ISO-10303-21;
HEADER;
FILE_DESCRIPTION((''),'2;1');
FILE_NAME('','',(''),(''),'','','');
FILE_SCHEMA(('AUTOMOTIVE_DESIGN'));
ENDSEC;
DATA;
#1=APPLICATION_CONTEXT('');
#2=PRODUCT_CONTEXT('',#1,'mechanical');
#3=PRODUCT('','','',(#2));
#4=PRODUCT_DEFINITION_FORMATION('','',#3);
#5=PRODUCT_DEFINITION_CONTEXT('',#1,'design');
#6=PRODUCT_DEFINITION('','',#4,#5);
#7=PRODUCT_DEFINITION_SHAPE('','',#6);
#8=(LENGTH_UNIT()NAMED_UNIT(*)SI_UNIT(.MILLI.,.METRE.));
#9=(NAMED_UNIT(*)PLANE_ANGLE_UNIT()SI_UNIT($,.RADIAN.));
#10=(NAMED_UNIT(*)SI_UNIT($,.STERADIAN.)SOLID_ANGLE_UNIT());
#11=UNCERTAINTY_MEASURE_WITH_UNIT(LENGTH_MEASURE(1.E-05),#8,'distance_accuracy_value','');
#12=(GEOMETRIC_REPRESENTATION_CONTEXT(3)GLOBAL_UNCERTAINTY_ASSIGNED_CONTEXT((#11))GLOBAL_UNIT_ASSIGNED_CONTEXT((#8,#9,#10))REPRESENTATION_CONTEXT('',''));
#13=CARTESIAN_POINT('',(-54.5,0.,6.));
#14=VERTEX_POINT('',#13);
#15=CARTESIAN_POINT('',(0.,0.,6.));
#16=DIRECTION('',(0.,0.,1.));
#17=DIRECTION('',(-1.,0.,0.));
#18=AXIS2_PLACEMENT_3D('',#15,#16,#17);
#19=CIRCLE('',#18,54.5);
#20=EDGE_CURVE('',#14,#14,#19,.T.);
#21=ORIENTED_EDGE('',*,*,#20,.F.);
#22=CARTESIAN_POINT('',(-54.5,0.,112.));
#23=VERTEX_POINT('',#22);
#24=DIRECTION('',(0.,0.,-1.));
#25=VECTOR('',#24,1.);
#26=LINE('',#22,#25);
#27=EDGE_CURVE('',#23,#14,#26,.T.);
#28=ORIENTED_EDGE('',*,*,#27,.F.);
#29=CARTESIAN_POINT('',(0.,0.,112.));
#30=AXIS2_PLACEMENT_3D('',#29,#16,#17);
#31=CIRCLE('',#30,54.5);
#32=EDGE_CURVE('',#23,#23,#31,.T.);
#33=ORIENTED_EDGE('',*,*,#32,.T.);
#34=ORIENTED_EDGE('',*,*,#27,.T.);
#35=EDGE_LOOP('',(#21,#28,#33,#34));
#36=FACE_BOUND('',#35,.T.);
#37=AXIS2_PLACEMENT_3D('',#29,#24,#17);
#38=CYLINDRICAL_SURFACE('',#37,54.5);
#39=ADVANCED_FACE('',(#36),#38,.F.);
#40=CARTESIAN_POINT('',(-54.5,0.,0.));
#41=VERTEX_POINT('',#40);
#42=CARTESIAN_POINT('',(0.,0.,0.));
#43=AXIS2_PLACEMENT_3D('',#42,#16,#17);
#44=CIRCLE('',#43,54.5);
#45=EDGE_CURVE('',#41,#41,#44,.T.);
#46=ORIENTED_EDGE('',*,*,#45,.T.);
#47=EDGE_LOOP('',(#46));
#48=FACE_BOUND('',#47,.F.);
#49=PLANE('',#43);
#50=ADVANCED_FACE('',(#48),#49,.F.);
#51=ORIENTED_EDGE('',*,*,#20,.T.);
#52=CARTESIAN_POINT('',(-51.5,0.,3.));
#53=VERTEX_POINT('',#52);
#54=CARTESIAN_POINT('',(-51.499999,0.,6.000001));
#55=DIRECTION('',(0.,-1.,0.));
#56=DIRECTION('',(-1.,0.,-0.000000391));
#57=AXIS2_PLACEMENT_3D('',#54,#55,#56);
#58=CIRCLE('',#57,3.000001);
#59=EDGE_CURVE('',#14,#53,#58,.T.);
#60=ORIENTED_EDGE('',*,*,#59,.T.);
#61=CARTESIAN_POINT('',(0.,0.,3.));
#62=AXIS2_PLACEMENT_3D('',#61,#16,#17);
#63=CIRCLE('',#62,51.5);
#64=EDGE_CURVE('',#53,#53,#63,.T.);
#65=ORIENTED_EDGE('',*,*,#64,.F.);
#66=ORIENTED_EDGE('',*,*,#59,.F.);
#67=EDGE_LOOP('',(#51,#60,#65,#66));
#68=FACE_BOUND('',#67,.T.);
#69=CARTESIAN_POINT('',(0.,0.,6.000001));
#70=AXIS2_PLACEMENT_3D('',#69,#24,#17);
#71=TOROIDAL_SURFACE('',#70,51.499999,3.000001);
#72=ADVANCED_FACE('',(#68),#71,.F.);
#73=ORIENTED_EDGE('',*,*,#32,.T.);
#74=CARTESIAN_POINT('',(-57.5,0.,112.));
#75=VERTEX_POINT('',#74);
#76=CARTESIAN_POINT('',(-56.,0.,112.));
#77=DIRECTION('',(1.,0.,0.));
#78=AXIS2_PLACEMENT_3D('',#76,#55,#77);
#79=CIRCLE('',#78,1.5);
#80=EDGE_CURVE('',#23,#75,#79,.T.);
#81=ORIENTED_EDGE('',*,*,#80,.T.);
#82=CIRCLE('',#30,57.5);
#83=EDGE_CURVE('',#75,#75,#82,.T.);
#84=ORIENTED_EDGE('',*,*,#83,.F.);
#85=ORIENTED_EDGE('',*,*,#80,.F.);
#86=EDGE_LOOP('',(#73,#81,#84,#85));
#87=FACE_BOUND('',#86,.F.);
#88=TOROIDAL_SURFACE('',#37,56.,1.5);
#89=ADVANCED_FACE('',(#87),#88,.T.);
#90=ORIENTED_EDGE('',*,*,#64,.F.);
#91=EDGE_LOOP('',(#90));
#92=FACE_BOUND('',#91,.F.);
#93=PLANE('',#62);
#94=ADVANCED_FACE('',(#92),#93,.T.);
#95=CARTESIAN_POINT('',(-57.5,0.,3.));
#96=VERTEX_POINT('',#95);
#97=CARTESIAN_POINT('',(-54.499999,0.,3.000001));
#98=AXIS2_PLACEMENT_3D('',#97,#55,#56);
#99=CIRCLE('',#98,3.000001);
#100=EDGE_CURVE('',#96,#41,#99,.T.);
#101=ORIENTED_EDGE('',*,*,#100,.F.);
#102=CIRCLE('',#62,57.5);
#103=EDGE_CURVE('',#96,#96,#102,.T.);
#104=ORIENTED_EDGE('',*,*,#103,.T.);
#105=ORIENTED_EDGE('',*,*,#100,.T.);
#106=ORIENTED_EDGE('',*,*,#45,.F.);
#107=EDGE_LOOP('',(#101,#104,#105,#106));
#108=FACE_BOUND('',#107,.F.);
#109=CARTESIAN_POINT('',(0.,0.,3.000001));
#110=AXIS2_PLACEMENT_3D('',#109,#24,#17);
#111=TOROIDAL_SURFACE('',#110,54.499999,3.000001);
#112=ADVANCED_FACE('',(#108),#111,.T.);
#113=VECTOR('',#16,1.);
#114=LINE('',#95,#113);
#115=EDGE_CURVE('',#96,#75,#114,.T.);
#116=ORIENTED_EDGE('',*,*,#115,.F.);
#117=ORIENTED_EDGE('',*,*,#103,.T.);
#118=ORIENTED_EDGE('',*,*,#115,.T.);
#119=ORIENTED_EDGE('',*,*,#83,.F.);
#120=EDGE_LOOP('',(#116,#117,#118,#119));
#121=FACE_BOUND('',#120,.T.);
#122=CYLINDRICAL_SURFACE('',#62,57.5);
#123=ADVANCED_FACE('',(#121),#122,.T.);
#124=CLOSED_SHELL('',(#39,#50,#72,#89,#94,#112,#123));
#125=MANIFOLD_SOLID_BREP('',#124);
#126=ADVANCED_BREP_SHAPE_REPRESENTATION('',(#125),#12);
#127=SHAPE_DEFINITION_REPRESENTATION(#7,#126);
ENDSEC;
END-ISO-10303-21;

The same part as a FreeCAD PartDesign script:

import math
import FreeCAD as App
import Part
import Sketcher
from FreeCAD import Vector
Q = App.Units.Quantity

doc = App.newDocument("Part")
body = doc.addObject("PartDesign::Body", "Body")

# Sketch on XZ plane
sketch1 = body.newObject("Sketcher::SketchObject", "Sketch")
sketch1.AttachmentSupport = (doc.getObject("XZ_Plane"), [""])
sketch1.MapMode = "FlatFace"
sketch1.addGeometry([
    Part.LineSegment(Vector(-54.5, 0, 0), Vector(0, 0, 0)),  # 0
    Part.LineSegment(Vector(0, 0, 0), Vector(0, 3, 0)),  # 1
    Part.LineSegment(Vector(0, 3, 0), Vector(-51.5, 3, 0)),  # 2
    Part.ArcOfCircle(Part.Circle(Vector(-51.5, 6, 0), Vector(0, 0, 1), 3), math.radians(-180), math.radians(-90)),  # 3
    Part.LineSegment(Vector(-54.5, 6, 0), Vector(-54.5, 112, 0)),  # 4
    Part.ArcOfCircle(Part.Circle(Vector(-56, 112, 0), Vector(0, 0, 1), 1.5), math.radians(0), math.radians(180)),  # 5
    Part.LineSegment(Vector(-57.5, 112, 0), Vector(-57.5, 3, 0)),  # 6
    Part.ArcOfCircle(Part.Circle(Vector(-54.5, 3, 0), Vector(0, 0, 1), 3), math.radians(-180), math.radians(-90)),  # 7
], False)
sketch1.addConstraint([
    Sketcher.Constraint("Coincident", 0, 2, 1, 1),
    Sketcher.Constraint("Coincident", 1, 2, 2, 1),
    Sketcher.Constraint("Tangent", 2, 2, 3, 2),
    Sketcher.Constraint("Tangent", 3, 1, 4, 1),
    Sketcher.Constraint("Tangent", 4, 2, 5, 1),
    Sketcher.Constraint("Tangent", 5, 2, 6, 1),
    Sketcher.Constraint("Tangent", 6, 2, 7, 1),
    Sketcher.Constraint("Tangent", 7, 2, 0, 1),
    Sketcher.Constraint("Horizontal", 0),
    Sketcher.Constraint("Vertical", 1),
    Sketcher.Constraint("Horizontal", 2),
    Sketcher.Constraint("Vertical", 4),
    Sketcher.Constraint("Vertical", 6),
    Sketcher.Constraint("Coincident", 0, 2, -1, 1),
    Sketcher.Constraint("Equal", 3, 7),
    Sketcher.Constraint("Horizontal", 7, 3, 1, 2),
    Sketcher.Constraint("Vertical", 7, 3, 3, 1),
    Sketcher.Constraint("Radius", 3, Q("3.000001 mm")),
    Sketcher.Constraint("DistanceY", 4, 1, 4, 2, Q("106 mm")),
    Sketcher.Constraint("DistanceX", 0, 1, 0, 2, Q("54.5 mm")),
])
revolution = body.newObject("PartDesign::Revolution", "Revolution")
revolution.Profile = sketch1
revolution.ReferenceAxis = (sketch1, ["V_Axis"])
revolution.Angle = 360

doc.recompute()
